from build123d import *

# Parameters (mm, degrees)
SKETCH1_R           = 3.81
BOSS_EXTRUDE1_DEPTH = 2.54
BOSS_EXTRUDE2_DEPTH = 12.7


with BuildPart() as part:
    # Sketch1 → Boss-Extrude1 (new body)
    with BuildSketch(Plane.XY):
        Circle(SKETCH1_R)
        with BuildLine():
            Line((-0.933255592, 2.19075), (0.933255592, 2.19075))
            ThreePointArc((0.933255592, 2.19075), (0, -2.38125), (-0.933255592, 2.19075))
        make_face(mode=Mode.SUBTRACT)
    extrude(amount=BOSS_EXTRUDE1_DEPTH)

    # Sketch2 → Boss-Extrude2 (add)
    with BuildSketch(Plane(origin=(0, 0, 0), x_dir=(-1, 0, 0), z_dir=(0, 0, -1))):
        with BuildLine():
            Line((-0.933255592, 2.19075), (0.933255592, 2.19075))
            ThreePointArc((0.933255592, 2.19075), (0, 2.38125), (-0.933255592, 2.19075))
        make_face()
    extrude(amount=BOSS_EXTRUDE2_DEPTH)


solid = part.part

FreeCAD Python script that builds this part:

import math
import FreeCAD as App
import Part
import Sketcher
from FreeCAD import Vector
Q = App.Units.Quantity

doc = App.newDocument("Part")
body = doc.addObject("PartDesign::Body", "Body")

# Sketch on XY plane
sketch1 = doc.addObject("Sketcher::SketchObject", "Sketch")
body.addObject(sketch1)
sketch1.AttachmentSupport = (doc.XY_Plane, [""])
sketch1.MapMode = "FlatFace"
sketch1.addGeometry([
    Part.Circle(Vector(0, 0, 0), Vector(0, 0, 1), 3.81),
    Part.ArcOfCircle(Part.Circle(Vector(0, 0, 0), Vector(0, 0, 1), 2.38125), math.radians(113.073918), math.radians(426.926082)),
    Part.LineSegment(Vector(-0.933256, 2.19075, 0), Vector(0.933256, 2.19075, 0)),
], False)
sketch1.addConstraint([
    Sketcher.Constraint("Coincident", 1, 1, 2, 1),
    Sketcher.Constraint("Coincident", 2, 2, 1, 2),
    Sketcher.Constraint("Horizontal", 2),
    Sketcher.Constraint("Coincident", 0, 3, -1, 1),
    Sketcher.Constraint("Coincident", 1, 3, -1, 1),
    Sketcher.Constraint("Diameter", 0, Q("0.3 in")),
    Sketcher.Constraint("Radius", 1, Q("0.09375 in")),
    Sketcher.Constraint("DistanceX", 2, 1, 2, 2, 1.866511),
])
pad1 = doc.addObject("PartDesign::Pad", "Pad")
body.addObject(pad1)
pad1.Profile = sketch1
pad1.Length = Q("0.1 in")

# Sketch on XY plane
sketch2 = doc.addObject("Sketcher::SketchObject", "Sketch001")
body.addObject(sketch2)
sketch2.AttachmentSupport = (doc.XY_Plane, [""])
sketch2.MapMode = "FlatFace"
sketch2.addGeometry([
    Part.LineSegment(Vector(0.933256, 2.19075, 0), Vector(-0.933256, 2.19075, 0)),
    Part.ArcOfCircle(Part.Circle(Vector(0, 0, 0), Vector(0, 0, 1), 2.38125), math.radians(66.926082), math.radians(113.073918)),
], False)
sketch2.addConstraint([
    Sketcher.Constraint("Coincident", 0, 1, 1, 1),
    Sketcher.Constraint("Coincident", 1, 2, 0, 2),
    Sketcher.Constraint("Horizontal", 0),
    Sketcher.Constraint("Coincident", 1, 3, -1, 1),
    Sketcher.Constraint("Radius", 1, Q("0.09375 in")),
    Sketcher.Constraint("DistanceX", 0, 2, 0, 1, 1.866511),
])
pad2 = doc.addObject("PartDesign::Pad", "Pad001")
body.addObject(pad2)
pad2.Profile = sketch2
pad2.Length = Q("0.5 in")
pad2.Reversed = True

doc.recompute()
